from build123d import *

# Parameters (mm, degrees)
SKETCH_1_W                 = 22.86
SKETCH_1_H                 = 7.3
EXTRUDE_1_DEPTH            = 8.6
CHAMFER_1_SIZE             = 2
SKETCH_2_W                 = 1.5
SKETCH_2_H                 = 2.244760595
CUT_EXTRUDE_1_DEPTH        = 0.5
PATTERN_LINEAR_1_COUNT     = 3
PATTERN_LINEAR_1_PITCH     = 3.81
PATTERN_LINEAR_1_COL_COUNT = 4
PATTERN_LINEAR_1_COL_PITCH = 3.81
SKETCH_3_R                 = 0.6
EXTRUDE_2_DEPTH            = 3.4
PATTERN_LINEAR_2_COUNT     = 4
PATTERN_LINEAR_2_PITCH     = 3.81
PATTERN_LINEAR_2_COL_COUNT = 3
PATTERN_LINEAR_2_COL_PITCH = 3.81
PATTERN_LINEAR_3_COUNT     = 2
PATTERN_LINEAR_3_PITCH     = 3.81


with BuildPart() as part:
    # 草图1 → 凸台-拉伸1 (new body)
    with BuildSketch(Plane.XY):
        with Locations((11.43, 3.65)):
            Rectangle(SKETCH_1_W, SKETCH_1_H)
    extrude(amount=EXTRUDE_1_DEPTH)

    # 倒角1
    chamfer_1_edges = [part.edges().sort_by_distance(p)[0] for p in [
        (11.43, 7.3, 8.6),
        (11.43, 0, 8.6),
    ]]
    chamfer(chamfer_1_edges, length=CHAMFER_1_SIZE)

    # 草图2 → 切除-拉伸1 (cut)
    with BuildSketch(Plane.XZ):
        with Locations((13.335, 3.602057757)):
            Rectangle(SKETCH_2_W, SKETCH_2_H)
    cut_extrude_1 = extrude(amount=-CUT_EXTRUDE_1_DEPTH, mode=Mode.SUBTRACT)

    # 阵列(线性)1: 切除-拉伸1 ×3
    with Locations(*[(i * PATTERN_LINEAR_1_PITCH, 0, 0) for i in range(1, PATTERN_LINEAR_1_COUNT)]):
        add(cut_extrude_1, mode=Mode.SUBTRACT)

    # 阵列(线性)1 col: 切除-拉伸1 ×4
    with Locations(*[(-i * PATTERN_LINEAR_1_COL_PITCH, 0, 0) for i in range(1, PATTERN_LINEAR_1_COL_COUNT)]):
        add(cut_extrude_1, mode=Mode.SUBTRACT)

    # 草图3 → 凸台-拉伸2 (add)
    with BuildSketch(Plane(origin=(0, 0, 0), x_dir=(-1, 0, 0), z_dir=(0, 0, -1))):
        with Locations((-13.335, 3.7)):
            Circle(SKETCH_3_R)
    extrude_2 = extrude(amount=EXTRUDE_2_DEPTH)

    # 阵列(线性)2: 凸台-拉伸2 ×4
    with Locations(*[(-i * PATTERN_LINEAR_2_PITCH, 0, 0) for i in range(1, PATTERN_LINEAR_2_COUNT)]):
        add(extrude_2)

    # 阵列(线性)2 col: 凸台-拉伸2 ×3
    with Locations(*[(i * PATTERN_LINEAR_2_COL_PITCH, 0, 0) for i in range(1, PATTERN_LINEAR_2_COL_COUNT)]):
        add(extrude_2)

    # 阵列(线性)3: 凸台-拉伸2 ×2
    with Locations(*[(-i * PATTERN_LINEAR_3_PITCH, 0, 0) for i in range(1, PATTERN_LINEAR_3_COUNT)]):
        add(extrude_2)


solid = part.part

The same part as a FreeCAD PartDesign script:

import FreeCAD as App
import Part
import Sketcher
from FreeCAD import Vector


def edges_at(feature, points):
    """Names of the edges that pass closest to the given points."""
    edges = feature.Shape.Edges
    near = lambda p: min(range(len(edges)), key=lambda i: edges[i].distToShape(Part.Vertex(*p))[0])
    return sorted({f"Edge{near(p) + 1}" for p in points})


def add_polygon(sketch, points):
    """Adds a closed chain of lines whose ends are joined by coincident constraints."""
    first, n = sketch.GeometryCount, len(points)
    for a, b in zip(points, points[1:] + points[:1]):
        sketch.addGeometry(Part.LineSegment(App.Vector(*a, 0), App.Vector(*b, 0)), False)
    for i in range(n):
        sketch.addConstraint(Sketcher.Constraint("Coincident", first + i, 2, first + (i + 1) % n, 1))

doc = App.newDocument("Part")
body = doc.addObject("PartDesign::Body", "Body")

sketch1 = body.newObject("Sketcher::SketchObject", "Sketch")
sketch1.AttachmentSupport = (doc.getObject("XY_Plane"), [""])
sketch1.MapMode = "FlatFace"
add_polygon(sketch1, [(0, 7), (0, 0), (23, 0), (23, 7)])
sketch1.addConstraint([
    Sketcher.Constraint("Vertical", 0),
    Sketcher.Constraint("Horizontal", 1),
    Sketcher.Constraint("Vertical", 2),
    Sketcher.Constraint("Horizontal", 3),
    Sketcher.Constraint("Coincident", 0, 2, -1, 1),
    Sketcher.Constraint("DistanceY", 0, 2, 0, 1, 7.3),
    Sketcher.Constraint("DistanceX", 1, 1, 1, 2, 22.86),
])
pad1 = body.newObject("PartDesign::Pad", "Pad")
pad1.Profile = sketch1
pad1.Length = 8.6
doc.recompute()

chamfer = body.newObject("PartDesign::Chamfer", "Chamfer")
chamfer.Base = (pad1, edges_at(pad1, [(11.43, 7.3, 8.6), (11.43, 0, 8.6)]))
chamfer.Size = 2

sketch2 = body.newObject("Sketcher::SketchObject", "Sketch001")
sketch2.AttachmentSupport = (doc.getObject("XZ_Plane"), [""])
sketch2.MapMode = "FlatFace"
add_polygon(sketch2, [(12.6, 4.7), (12.6, 2.5), (14.1, 2.5), (14.1, 4.7)])
sketch2.addConstraint([
    Sketcher.Constraint("Vertical", 0),
    Sketcher.Constraint("Horizontal", 1),
    Sketcher.Constraint("Vertical", 2),
    Sketcher.Constraint("Horizontal", 3),
    Sketcher.Constraint("DistanceX", 1, 1, 1, 2, 1.5),
    Sketcher.Constraint("DistanceX", -1, 1, 0, 2, 12.585),
    Sketcher.Constraint("DistanceY", 0, 2, 0, 1, 2.244761),
    Sketcher.Constraint("DistanceY", -1, 1, 2, 2, 4.724438),
])
pocket1 = body.newObject("PartDesign::Pocket", "Pocket")
pocket1.Profile = sketch2
pocket1.Length = 0.5
doc.recompute()

linearpattern = body.newObject("PartDesign::LinearPattern", "LinearPattern")
linearpattern.Originals = [pocket1]
linearpattern.Direction = (doc.getObject("X_Axis"), [""])
linearpattern.Mode = "offset"
linearpattern.Offset = 3.81
linearpattern.Occurrences = 3
body.Tip = linearpattern
doc.recompute()

linearpattern2 = body.newObject("PartDesign::LinearPattern", "LinearPattern001")
linearpattern2.Originals = [pocket1]
linearpattern2.Direction = (doc.getObject("X_Axis"), [""])
linearpattern2.Mode = "offset"
linearpattern2.Offset = 3.81
linearpattern2.Occurrences = 4
linearpattern2.Reversed = True
body.Tip = linearpattern2

sketch3 = body.newObject("Sketcher::SketchObject", "Sketch002")
sketch3.AttachmentSupport = (doc.getObject("XY_Plane"), [""])
sketch3.MapMode = "FlatFace"
sketch3.addGeometry(Part.Circle(Vector(13.3, 3.7, 0), Vector(0, 0, 1), 0.6), False)
sketch3.addConstraint([
    Sketcher.Constraint("Diameter", 0, 1.2),
    Sketcher.Constraint("DistanceY", -1, 1, 0, 3, 3.7),
    Sketcher.Constraint("DistanceX", -1, 1, 0, 3, 13.335),
])
pad2 = body.newObject("PartDesign::Pad", "Pad001")
pad2.Profile = sketch3
pad2.Length = 3.4
pad2.Reversed = True
doc.recompute()

linearpattern3 = body.newObject("PartDesign::LinearPattern", "LinearPattern002")
linearpattern3.Originals = [pad2]
linearpattern3.Direction = (doc.getObject("X_Axis"), [""])
linearpattern3.Mode = "offset"
linearpattern3.Offset = 3.81
linearpattern3.Occurrences = 4
linearpattern3.Reversed = True
body.Tip = linearpattern3
doc.recompute()

linearpattern4 = body.newObject("PartDesign::LinearPattern", "LinearPattern003")
linearpattern4.Originals = [pad2]
linearpattern4.Direction = (doc.getObject("X_Axis"), [""])
linearpattern4.Mode = "offset"
linearpattern4.Offset = 3.81
linearpattern4.Occurrences = 3
body.Tip = linearpattern4
doc.recompute()

linearpattern5 = body.newObject("PartDesign::LinearPattern", "LinearPattern004")
linearpattern5.Originals = [pad2]
linearpattern5.Direction = (doc.getObject("X_Axis"), [""])
linearpattern5.Mode = "offset"
linearpattern5.Offset = 3.81
linearpattern5.Occurrences = 2
linearpattern5.Reversed = True
body.Tip = linearpattern5

doc.recompute()
